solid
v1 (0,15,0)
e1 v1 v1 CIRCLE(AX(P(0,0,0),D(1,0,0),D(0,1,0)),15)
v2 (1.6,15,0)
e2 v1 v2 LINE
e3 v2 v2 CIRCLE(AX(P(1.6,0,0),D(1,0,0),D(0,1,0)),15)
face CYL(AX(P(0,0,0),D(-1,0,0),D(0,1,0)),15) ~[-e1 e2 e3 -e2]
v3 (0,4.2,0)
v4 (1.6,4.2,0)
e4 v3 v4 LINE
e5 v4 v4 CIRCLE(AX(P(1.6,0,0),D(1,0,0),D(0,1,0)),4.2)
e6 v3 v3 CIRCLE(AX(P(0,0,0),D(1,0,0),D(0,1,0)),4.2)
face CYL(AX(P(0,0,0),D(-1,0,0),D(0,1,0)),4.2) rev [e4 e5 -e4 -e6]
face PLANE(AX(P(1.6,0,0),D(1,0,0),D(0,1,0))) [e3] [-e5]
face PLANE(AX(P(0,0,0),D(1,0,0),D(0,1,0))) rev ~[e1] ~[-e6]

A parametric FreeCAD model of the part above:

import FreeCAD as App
import Part
import Sketcher
Q = App.Units.Quantity

doc = App.newDocument("Part")
body = doc.addObject("PartDesign::Body", "Body")

# Sketch on YZ plane
sketch1 = body.newObject("Sketcher::SketchObject", "Sketch")
sketch1.AttachmentSupport = (doc.getObject("YZ_Plane"), [""])
sketch1.MapMode = "FlatFace"
sketch1.addGeometry([
    Part.Circle(App.Vector(0, 0, 0), App.Vector(0, 0, 1), 15),
    Part.Circle(App.Vector(0, 0, 0), App.Vector(0, 0, 1), 4.2),
], False)
sketch1.addConstraint([
    Sketcher.Constraint("Coincident", 0, 3, -1, 1),
    Sketcher.Constraint("Coincident", 1, 3, -1, 1),
    Sketcher.Constraint("Diameter", 0, Q("1.1811 in")),
    Sketcher.Constraint("Diameter", 1, Q("0.3307 in")),
])
pad1 = body.newObject("PartDesign::Pad", "Pad")
pad1.Profile = sketch1
pad1.Length = Q("0.0629921 in")

doc.recompute()
